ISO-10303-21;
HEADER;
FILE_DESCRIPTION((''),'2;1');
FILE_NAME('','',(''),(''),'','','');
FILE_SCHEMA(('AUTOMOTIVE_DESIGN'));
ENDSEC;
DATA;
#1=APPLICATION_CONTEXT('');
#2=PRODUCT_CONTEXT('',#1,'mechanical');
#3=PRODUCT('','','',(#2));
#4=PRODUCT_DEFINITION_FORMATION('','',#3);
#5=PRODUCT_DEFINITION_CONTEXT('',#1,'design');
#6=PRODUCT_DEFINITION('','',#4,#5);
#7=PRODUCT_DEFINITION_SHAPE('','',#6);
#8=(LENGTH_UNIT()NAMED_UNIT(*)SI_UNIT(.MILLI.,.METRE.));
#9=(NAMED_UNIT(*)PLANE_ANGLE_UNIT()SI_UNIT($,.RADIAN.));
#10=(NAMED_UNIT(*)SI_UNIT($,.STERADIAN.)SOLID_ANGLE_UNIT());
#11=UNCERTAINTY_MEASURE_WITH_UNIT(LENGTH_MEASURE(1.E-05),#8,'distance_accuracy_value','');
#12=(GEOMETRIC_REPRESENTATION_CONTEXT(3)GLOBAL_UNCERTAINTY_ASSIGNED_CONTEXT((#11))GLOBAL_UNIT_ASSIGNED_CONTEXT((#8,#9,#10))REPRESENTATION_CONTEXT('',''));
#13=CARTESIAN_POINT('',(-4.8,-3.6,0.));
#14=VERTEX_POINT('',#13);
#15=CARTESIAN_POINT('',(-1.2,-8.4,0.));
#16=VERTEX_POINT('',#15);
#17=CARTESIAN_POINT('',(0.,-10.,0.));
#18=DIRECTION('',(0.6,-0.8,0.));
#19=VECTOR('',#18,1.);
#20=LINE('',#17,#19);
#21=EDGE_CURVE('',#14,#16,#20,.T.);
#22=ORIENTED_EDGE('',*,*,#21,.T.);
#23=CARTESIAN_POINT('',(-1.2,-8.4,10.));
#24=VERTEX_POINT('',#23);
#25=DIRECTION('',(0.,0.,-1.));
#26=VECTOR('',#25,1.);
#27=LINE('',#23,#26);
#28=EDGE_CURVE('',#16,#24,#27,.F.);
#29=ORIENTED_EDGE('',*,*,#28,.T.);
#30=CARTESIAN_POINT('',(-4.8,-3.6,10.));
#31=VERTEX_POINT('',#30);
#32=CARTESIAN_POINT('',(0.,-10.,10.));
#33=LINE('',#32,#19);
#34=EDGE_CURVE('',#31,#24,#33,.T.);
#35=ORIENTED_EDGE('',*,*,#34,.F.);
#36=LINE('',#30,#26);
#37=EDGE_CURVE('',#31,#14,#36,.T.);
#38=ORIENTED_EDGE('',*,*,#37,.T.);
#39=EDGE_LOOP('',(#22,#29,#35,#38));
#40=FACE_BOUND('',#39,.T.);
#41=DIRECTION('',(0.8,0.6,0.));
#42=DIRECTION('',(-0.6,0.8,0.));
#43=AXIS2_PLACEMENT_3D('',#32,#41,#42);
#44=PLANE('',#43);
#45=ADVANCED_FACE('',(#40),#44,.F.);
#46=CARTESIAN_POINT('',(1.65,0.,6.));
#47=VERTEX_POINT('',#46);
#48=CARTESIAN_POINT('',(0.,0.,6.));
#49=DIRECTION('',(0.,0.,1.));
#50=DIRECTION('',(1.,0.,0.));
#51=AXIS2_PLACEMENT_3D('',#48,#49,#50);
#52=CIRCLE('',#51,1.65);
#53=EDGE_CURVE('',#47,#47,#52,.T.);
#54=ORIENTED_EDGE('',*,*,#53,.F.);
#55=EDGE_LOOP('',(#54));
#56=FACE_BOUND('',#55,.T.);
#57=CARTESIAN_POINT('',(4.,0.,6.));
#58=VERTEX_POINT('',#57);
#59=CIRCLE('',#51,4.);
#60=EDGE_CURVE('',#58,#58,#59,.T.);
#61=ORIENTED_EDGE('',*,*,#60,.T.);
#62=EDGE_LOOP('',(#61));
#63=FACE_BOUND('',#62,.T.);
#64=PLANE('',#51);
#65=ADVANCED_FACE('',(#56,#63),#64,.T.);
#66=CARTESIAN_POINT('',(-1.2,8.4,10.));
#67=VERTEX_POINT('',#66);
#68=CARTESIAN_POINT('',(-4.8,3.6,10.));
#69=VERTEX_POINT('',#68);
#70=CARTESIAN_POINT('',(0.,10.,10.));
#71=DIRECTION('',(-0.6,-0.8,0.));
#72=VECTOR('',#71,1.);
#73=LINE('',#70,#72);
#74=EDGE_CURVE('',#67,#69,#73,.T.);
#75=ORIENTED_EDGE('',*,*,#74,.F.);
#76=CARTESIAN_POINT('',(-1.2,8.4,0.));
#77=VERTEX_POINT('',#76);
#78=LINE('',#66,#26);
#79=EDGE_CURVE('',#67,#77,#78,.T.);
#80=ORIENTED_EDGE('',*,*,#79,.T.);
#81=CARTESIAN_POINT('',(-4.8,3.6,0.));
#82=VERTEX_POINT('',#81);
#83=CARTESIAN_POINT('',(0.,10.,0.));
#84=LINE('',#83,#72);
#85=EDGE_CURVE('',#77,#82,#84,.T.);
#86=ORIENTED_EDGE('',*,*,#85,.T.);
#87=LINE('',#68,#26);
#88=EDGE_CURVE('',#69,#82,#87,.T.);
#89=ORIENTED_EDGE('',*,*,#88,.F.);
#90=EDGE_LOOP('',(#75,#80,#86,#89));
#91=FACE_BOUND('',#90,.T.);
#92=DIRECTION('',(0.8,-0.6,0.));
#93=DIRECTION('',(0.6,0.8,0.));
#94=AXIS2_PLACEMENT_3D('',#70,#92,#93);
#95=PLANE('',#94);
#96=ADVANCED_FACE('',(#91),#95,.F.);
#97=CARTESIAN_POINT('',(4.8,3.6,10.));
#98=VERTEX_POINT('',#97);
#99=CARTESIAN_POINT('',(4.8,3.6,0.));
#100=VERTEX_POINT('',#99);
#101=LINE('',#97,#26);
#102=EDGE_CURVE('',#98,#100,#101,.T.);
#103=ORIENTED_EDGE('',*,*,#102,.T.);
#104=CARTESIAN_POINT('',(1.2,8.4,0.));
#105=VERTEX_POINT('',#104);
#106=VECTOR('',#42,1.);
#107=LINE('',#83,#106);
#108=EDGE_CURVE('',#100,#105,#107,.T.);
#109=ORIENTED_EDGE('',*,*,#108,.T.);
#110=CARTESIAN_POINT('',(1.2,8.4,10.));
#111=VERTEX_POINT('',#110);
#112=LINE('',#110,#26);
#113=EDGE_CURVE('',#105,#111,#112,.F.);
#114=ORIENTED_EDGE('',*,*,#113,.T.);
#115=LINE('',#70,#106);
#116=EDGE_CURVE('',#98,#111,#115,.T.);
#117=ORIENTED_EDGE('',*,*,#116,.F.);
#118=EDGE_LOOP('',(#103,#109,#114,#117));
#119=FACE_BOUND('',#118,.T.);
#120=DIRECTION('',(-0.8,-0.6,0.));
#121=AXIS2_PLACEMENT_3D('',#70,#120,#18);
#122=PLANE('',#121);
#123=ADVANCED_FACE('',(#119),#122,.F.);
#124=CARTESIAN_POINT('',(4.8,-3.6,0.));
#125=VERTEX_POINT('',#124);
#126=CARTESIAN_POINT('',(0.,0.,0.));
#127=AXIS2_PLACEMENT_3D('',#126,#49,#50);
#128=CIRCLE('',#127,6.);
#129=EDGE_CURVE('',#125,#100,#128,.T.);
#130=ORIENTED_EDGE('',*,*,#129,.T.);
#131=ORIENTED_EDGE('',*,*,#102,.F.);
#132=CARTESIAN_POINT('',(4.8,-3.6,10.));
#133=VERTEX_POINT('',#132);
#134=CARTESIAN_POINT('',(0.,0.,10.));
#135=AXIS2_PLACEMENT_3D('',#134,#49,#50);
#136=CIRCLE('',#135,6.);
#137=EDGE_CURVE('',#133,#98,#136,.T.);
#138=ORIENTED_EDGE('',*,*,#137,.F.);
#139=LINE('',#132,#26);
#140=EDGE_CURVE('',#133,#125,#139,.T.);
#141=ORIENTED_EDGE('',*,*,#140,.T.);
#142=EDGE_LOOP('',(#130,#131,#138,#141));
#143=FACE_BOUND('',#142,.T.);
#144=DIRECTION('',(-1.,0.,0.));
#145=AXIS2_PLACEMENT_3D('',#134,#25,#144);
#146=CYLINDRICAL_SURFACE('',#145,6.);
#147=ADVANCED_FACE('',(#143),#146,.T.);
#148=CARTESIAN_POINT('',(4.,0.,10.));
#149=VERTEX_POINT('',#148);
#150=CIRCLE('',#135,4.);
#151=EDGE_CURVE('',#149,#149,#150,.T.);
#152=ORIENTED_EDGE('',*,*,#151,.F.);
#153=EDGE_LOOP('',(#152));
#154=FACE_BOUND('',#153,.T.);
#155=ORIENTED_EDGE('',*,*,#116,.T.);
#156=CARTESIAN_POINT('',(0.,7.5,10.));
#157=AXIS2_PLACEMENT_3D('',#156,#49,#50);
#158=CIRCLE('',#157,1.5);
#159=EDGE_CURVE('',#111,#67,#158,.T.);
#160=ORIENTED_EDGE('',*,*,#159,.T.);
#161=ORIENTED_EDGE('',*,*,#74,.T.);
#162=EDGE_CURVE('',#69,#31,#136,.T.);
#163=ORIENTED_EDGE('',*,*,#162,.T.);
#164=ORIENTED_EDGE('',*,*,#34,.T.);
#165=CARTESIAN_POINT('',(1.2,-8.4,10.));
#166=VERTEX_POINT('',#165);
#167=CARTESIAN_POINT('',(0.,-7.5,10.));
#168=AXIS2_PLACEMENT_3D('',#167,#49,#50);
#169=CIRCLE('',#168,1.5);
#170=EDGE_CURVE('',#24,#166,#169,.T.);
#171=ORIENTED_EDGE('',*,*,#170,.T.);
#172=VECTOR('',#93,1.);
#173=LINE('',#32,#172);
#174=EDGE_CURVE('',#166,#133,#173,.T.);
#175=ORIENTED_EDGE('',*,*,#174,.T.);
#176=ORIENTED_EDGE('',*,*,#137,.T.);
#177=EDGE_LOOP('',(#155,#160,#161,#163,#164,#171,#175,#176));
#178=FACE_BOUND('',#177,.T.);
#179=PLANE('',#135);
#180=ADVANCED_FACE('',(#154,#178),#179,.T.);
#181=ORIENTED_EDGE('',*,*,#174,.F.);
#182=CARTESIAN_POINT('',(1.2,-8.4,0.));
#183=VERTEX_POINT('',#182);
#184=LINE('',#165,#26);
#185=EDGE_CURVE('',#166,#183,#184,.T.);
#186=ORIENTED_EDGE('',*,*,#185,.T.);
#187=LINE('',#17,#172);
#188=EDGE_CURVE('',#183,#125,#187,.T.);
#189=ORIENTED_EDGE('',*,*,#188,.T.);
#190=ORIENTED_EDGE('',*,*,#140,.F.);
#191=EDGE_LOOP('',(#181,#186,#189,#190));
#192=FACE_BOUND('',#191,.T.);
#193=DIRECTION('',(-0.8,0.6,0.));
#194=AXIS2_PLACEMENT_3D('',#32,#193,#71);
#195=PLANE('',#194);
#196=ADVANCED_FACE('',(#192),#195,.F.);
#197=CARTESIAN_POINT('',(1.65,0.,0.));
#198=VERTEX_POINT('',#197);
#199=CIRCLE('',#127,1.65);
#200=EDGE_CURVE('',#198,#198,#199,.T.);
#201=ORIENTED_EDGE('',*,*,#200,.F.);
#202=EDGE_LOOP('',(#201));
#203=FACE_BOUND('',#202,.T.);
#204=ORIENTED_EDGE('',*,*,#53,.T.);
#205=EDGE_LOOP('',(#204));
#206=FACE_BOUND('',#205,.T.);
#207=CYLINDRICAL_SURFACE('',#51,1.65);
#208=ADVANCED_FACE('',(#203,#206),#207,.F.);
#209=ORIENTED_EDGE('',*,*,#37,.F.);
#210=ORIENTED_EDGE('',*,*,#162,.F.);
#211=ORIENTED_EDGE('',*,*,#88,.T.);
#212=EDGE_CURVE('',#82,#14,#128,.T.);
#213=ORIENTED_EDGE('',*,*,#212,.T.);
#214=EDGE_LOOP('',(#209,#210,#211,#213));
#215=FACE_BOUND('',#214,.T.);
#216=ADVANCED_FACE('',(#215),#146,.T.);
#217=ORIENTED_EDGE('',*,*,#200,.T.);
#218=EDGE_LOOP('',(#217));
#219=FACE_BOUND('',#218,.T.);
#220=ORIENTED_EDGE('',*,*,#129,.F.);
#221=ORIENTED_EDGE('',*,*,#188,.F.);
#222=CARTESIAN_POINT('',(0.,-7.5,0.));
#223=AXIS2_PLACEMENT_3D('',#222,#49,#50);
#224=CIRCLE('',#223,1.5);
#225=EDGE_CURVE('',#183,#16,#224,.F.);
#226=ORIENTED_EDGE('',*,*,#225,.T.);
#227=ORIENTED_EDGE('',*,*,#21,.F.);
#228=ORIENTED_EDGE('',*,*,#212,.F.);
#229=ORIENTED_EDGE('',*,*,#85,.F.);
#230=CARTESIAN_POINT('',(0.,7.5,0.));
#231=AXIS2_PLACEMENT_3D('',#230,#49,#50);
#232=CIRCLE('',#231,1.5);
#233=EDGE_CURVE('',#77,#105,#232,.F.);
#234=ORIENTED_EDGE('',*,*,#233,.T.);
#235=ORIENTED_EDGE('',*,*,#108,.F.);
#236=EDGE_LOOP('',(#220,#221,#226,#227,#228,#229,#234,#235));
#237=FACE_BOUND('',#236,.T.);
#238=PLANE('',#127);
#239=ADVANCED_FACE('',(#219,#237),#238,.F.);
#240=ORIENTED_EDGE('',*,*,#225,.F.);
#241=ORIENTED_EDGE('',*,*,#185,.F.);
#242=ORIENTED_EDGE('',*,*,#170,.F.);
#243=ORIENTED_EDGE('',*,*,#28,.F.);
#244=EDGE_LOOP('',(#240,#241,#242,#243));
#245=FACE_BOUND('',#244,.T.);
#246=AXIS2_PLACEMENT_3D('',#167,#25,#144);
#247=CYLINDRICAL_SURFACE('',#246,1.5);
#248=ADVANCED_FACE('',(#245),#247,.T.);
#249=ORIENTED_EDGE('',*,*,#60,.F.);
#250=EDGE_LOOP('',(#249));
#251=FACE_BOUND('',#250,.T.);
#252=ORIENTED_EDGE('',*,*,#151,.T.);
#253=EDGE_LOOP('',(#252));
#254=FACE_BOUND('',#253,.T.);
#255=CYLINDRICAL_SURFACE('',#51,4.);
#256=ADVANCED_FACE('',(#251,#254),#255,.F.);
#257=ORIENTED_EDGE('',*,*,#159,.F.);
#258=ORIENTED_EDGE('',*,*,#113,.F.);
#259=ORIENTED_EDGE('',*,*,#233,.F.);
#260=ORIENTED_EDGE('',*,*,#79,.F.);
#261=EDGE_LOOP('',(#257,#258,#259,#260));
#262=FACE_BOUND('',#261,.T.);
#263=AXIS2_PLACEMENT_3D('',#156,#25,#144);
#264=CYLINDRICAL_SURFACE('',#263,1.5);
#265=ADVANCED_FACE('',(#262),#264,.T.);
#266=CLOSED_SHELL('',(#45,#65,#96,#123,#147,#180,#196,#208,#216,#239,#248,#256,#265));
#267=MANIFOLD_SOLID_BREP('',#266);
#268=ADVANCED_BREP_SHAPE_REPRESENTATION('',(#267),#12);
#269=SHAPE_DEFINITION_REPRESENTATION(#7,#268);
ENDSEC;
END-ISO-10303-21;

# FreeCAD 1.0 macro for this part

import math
import FreeCAD as App
import Part
import Sketcher
from FreeCAD import Vector
Q = App.Units.Quantity


def edges_at(feature, points):
    """Names of the edges that pass closest to the given points."""
    edges = feature.Shape.Edges
    near = lambda p: min(range(len(edges)), key=lambda i: edges[i].distToShape(Part.Vertex(*p))[0])
    return sorted({f"Edge{near(p) + 1}" for p in points})

doc = App.newDocument("Part")
body = doc.addObject("PartDesign::Body", "Body")

# Sketch on XY plane
sketch1 = doc.addObject("Sketcher::SketchObject", "Sketch")
body.addObject(sketch1)
sketch1.AttachmentSupport = (doc.XY_Plane, [""])
sketch1.MapMode = "FlatFace"
sketch1.addGeometry(Part.LineSegment(Vector(0, 10, 0), Vector(-5, 4, 0)), False)
sketch1.addGeometry(Part.ArcOfCircle(Part.Circle(Vector(0, 0, 0), Vector(0, 0, 1), 6), math.radians(143), math.radians(217)), False)
sketch1.addGeometry(Part.LineSegment(Vector(-5, -4, 0), Vector(0, -10, 0)), False)
sketch1.addGeometry(Part.LineSegment(Vector(0, -10, 0), Vector(5, -4, 0)), False)
sketch1.addGeometry(Part.ArcOfCircle(Part.Circle(Vector(0, 0, 0), Vector(0, 0, 1), 6), math.radians(-37), math.radians(37)), False)
sketch1.addGeometry(Part.LineSegment(Vector(5, 4, 0), Vector(0, 10, 0)), False)
sketch1.addConstraint(Sketcher.Constraint("Tangent", 0, 2, 1, 1))
sketch1.addConstraint(Sketcher.Constraint("Tangent", 1, 2, 2, 1))
sketch1.addConstraint(Sketcher.Constraint("Coincident", 2, 2, 3, 1))
sketch1.addConstraint(Sketcher.Constraint("Tangent", 3, 2, 4, 1))
sketch1.addConstraint(Sketcher.Constraint("Tangent", 4, 2, 5, 1))
sketch1.addConstraint(Sketcher.Constraint("Coincident", 5, 2, 0, 1))
sketch1.addConstraint(Sketcher.Constraint("Coincident", 1, 3, -1, 1))
sketch1.addConstraint(Sketcher.Constraint("Coincident", 4, 3, -1, 1))
sketch1.addConstraint(Sketcher.Constraint("Equal", 1, 4))
sketch1.addConstraint(Sketcher.Constraint("Symmetric", 2, 2, 5, 2, -1, 1))
sketch1.addConstraint(Sketcher.Constraint("PointOnObject", 2, 2, -2))
sketch1.addConstraint(Sketcher.Constraint("Radius", 1, Q("6 mm")))
sketch1.addConstraint(Sketcher.Constraint("Distance", 0, Q("8 mm")))
pad1 = doc.addObject("PartDesign::Pad", "Pad")
body.addObject(pad1)
pad1.Profile = sketch1
pad1.Length = 10

# Sketch on XY plane
sketch2 = doc.addObject("Sketcher::SketchObject", "Sketch001")
body.addObject(sketch2)
sketch2.AttachmentSupport = (doc.XY_Plane, [""])
sketch2.MapMode = "FlatFace"
sketch2.AttachmentOffset = App.Placement(Vector(0, 0, 10), App.Rotation())
sketch2.addGeometry(Part.Circle(Vector(0, 0, 0), Vector(0, 0, 1), 4), False)
sketch2.addConstraint(Sketcher.Constraint("Coincident", 0, 3, -1, 1))
sketch2.addConstraint(Sketcher.Constraint("Diameter", 0, Q("8 mm")))
pocket1 = doc.addObject("PartDesign::Pocket", "Pocket")
body.addObject(pocket1)
pocket1.Profile = sketch2
pocket1.Length = 4

# Sketch on XY plane
sketch3 = doc.addObject("Sketcher::SketchObject", "Sketch002")
body.addObject(sketch3)
sketch3.AttachmentSupport = (doc.XY_Plane, [""])
sketch3.MapMode = "FlatFace"
sketch3.AttachmentOffset = App.Placement(Vector(0, 0, 6), App.Rotation())
sketch3.addGeometry(Part.Circle(Vector(0, 0, 0), Vector(0, 0, 1), 1.6), False)
sketch3.addConstraint(Sketcher.Constraint("Coincident", 0, 3, -1, 1))
sketch3.addConstraint(Sketcher.Constraint("Diameter", 0, Q("3.3 mm")))
doc.recompute()
hole = doc.addObject("PartDesign::Hole", "Hole")
body.addObject(hole)
hole.Profile = sketch3
hole.ThreadType = "None"
hole.Diameter = 3.3
hole.DepthType = "ThroughAll"
doc.recompute()

fillet = doc.addObject("PartDesign::Fillet", "Fillet")
body.addObject(fillet)
fillet.Base = (hole, edges_at(hole, [(0, -10, 5), (0, 10, 5)]))
fillet.Radius = 1.5

doc.recompute()
